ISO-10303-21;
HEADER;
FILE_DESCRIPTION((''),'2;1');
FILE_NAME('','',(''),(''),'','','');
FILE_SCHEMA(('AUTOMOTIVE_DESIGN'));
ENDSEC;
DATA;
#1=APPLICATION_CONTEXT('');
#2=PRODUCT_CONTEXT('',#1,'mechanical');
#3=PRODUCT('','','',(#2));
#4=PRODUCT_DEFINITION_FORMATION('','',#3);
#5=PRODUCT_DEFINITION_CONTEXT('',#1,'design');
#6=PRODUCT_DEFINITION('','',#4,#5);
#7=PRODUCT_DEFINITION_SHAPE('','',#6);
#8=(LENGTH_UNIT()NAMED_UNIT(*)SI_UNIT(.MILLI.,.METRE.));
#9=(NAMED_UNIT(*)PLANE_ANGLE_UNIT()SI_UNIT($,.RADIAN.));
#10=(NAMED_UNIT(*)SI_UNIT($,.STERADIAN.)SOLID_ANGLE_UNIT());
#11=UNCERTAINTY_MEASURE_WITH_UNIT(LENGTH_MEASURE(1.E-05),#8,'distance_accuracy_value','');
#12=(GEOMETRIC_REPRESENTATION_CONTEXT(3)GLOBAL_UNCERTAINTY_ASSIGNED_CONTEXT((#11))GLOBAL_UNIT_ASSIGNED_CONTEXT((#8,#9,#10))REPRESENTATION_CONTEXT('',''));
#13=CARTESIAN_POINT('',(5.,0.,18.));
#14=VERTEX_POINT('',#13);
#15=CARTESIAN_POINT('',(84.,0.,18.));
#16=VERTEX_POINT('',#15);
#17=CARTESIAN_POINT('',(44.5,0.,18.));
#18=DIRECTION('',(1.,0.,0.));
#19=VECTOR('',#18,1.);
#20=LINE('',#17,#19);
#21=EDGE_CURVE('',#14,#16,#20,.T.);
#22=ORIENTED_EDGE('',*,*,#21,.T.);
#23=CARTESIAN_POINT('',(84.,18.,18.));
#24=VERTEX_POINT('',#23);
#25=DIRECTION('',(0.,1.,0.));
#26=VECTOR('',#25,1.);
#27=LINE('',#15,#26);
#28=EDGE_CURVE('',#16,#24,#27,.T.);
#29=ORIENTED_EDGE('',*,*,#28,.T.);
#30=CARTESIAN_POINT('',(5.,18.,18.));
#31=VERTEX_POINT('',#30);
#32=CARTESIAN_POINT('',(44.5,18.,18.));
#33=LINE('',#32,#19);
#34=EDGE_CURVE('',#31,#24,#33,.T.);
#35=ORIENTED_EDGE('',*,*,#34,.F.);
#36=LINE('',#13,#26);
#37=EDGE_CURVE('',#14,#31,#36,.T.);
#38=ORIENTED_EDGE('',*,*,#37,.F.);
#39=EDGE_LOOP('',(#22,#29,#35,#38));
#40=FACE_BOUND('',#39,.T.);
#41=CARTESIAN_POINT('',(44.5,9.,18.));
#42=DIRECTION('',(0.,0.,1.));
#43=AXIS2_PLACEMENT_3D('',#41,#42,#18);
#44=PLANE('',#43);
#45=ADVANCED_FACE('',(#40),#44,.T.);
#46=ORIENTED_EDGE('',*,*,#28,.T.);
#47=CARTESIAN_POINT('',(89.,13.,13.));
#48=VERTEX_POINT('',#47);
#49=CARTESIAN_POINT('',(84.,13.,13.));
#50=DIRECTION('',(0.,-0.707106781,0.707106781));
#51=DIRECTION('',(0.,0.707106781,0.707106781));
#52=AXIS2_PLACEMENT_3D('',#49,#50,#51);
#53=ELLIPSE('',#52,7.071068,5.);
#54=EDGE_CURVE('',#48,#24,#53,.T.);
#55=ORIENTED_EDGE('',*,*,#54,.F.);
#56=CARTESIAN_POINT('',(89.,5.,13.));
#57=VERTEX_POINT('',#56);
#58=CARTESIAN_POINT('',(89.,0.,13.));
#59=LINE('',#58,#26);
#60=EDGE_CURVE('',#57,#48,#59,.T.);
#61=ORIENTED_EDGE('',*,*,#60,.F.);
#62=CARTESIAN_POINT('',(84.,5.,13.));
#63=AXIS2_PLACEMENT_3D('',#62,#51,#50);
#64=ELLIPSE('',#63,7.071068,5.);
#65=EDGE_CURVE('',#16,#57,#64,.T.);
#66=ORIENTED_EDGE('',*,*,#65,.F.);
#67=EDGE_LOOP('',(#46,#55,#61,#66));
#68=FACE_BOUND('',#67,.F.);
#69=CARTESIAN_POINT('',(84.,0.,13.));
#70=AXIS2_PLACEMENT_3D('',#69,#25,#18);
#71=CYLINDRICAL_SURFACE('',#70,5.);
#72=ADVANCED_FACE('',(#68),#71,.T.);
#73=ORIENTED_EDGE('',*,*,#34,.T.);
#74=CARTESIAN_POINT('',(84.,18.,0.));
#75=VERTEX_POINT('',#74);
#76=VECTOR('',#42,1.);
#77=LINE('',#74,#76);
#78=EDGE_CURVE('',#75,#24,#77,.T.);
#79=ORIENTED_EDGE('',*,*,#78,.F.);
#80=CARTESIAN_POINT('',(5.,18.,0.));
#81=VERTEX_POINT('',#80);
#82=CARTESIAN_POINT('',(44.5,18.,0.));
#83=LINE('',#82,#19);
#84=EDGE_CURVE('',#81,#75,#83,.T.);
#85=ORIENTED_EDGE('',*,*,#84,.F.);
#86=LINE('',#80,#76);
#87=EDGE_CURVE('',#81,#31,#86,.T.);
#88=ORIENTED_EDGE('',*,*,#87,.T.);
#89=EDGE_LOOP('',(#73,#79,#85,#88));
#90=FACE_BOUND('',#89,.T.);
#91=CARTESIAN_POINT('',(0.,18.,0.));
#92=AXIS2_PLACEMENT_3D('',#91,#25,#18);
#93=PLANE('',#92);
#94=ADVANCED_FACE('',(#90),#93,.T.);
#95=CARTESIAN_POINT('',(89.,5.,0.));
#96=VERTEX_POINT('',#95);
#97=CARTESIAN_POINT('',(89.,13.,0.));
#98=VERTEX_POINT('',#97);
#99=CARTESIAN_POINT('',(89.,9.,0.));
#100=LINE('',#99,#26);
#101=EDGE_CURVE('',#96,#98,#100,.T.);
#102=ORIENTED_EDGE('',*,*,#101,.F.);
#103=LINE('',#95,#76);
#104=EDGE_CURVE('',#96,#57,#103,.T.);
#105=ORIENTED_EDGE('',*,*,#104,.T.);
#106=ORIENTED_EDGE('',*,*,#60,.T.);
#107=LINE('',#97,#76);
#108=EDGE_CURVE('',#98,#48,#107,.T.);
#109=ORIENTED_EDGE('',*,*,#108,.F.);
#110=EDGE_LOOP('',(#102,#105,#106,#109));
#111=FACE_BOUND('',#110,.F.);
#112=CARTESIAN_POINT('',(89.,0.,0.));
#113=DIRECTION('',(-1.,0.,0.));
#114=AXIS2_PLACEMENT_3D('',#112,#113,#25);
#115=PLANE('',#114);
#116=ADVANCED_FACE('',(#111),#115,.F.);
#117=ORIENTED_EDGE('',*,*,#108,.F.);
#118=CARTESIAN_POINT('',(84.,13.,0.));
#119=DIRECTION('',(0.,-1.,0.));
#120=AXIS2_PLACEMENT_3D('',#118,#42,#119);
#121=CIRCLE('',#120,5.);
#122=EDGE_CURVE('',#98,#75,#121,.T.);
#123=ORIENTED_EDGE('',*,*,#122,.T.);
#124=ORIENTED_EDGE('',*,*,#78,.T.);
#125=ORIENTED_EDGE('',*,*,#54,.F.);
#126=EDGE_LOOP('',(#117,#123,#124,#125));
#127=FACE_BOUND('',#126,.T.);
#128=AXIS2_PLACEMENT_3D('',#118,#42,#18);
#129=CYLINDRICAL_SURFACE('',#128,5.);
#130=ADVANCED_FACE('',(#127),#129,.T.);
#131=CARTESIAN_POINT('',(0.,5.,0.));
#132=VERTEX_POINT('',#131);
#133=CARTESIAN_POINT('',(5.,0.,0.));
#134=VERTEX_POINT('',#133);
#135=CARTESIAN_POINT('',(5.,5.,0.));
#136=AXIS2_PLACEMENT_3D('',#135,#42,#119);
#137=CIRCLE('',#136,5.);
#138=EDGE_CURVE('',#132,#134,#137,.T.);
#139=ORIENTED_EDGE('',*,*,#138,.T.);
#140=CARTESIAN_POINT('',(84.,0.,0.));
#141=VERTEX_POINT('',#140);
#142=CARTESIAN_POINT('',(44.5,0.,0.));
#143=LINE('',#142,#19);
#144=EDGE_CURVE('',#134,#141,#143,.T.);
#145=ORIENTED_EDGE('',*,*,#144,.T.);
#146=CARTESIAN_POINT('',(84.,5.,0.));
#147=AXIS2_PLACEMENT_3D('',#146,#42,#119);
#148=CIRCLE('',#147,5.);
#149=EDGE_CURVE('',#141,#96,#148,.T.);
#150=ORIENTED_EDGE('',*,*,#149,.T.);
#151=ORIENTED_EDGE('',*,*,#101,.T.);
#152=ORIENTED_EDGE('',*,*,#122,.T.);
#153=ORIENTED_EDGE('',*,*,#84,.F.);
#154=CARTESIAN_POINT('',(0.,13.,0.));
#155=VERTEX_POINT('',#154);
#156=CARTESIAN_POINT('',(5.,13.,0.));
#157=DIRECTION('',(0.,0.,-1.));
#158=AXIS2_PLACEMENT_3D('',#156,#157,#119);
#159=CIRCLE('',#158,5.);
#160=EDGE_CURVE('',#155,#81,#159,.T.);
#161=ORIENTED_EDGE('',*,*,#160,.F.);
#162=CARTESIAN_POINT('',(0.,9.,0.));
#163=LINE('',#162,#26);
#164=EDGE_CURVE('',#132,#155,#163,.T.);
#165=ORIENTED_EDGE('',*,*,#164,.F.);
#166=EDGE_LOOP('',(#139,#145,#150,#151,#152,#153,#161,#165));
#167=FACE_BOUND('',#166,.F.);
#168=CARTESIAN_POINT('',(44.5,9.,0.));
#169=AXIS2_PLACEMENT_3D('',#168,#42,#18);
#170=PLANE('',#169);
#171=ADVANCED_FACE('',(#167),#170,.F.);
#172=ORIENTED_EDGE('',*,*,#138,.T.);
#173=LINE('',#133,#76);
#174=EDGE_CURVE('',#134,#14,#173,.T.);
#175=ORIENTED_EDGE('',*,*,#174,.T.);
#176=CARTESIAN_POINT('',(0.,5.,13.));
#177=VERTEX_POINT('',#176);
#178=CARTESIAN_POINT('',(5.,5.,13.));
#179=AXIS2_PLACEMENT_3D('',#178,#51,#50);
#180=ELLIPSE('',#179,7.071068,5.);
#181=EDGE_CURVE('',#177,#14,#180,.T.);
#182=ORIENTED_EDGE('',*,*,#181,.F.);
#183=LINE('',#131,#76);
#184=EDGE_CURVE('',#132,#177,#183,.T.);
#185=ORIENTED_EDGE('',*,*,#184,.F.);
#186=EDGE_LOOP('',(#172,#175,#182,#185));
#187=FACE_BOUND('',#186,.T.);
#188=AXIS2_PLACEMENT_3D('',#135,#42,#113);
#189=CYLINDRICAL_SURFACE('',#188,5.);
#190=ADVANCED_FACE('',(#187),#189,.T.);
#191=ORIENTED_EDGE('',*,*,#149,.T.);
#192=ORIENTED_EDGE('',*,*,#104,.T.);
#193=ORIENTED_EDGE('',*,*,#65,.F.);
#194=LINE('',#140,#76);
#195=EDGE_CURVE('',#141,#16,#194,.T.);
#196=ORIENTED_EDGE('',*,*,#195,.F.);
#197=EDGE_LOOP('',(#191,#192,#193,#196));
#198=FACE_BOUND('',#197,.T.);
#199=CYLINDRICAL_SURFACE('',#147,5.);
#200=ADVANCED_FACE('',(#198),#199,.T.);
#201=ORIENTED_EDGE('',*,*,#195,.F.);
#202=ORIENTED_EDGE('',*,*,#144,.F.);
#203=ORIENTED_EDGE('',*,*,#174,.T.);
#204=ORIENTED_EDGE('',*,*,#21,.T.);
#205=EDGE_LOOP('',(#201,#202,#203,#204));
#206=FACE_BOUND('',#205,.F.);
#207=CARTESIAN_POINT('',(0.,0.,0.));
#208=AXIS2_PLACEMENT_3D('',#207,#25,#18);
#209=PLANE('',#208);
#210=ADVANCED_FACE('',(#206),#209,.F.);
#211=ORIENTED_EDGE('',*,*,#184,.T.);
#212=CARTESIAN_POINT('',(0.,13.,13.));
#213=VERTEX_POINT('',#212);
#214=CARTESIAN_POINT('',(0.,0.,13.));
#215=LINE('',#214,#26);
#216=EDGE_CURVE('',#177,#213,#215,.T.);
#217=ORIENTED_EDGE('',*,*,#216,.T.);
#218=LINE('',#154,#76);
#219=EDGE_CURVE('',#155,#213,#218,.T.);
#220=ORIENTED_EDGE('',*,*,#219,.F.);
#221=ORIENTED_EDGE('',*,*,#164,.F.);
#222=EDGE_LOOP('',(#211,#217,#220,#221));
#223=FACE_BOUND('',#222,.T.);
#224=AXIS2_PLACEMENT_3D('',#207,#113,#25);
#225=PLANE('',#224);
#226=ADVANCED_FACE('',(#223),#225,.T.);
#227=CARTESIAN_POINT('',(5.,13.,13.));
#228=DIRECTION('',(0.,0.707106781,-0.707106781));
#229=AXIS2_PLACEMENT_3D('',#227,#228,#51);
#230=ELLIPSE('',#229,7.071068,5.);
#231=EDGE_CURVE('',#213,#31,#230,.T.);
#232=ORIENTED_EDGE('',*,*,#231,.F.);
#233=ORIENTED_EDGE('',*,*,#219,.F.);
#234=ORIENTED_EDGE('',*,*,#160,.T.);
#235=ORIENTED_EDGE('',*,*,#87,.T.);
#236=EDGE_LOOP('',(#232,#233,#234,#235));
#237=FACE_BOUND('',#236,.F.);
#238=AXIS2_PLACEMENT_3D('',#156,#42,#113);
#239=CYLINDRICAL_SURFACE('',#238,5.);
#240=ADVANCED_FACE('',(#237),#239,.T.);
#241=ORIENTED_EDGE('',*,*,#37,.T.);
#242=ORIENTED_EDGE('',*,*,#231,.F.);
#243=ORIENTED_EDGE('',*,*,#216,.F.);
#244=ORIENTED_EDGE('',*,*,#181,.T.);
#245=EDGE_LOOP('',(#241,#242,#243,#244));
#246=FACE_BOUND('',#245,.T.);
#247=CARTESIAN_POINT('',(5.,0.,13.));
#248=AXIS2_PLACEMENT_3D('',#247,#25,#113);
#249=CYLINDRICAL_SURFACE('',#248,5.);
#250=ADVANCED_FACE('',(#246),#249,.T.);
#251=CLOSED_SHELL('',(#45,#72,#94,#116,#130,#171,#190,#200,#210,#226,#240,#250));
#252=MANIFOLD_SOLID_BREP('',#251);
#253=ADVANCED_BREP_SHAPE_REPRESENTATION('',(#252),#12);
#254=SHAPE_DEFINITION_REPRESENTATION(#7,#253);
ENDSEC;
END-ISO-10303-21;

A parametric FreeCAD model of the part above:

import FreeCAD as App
import Part
import Sketcher

V = App.Vector


def edges_at(feature, points):
    """Names of the edges that pass closest to the given points."""
    edges = feature.Shape.Edges
    near = lambda p: min(range(len(edges)), key=lambda i: edges[i].distToShape(Part.Vertex(*p))[0])
    return sorted({f"Edge{near(p) + 1}" for p in points})

doc = App.newDocument("Part")
body = doc.addObject("PartDesign::Body", "Body")

# Sketch on XY plane
sketch1 = body.newObject("Sketcher::SketchObject", "Sketch")
sketch1.AttachmentSupport = (doc.getObject("XY_Plane"), [""])
sketch1.MapMode = "FlatFace"
sketch1.addGeometry(Part.LineSegment(V(0, 18, 0), V(0, 0, 0)), False)
sketch1.addGeometry(Part.LineSegment(V(0, 0, 0), V(89, 0, 0)), False)
sketch1.addGeometry(Part.LineSegment(V(89, 0, 0), V(89, 18, 0)), False)
sketch1.addGeometry(Part.LineSegment(V(89, 18, 0), V(0, 18, 0)), False)
sketch1.addConstraint(Sketcher.Constraint("Coincident", 0, 2, 1, 1))
sketch1.addConstraint(Sketcher.Constraint("Coincident", 1, 2, 2, 1))
sketch1.addConstraint(Sketcher.Constraint("Coincident", 2, 2, 3, 1))
sketch1.addConstraint(Sketcher.Constraint("Coincident", 3, 2, 0, 1))
sketch1.addConstraint(Sketcher.Constraint("Vertical", 0))
sketch1.addConstraint(Sketcher.Constraint("Horizontal", 1))
sketch1.addConstraint(Sketcher.Constraint("Vertical", 2))
sketch1.addConstraint(Sketcher.Constraint("Horizontal", 3))
sketch1.addConstraint(Sketcher.Constraint("Coincident", 0, 2, -1, 1))
sketch1.addConstraint(Sketcher.Constraint("DistanceX", 1, 1, 1, 2, 89.0))
sketch1.addConstraint(Sketcher.Constraint("DistanceY", 0, 2, 0, 1, 18.0))
pad1 = body.newObject("PartDesign::Pad", "Pad")
pad1.Profile = sketch1
pad1.Length = 18
doc.recompute()

fillet = body.newObject("PartDesign::Fillet", "Fillet")
fillet.Base = (pad1, edges_at(pad1, [
    (0, 0, 9),
    (89, 0, 9),
    (89, 18, 9),
    (0, 18, 9),
    (0, 9, 18),
    (89, 9, 18),
]))
fillet.Radius = 5

doc.recompute()
